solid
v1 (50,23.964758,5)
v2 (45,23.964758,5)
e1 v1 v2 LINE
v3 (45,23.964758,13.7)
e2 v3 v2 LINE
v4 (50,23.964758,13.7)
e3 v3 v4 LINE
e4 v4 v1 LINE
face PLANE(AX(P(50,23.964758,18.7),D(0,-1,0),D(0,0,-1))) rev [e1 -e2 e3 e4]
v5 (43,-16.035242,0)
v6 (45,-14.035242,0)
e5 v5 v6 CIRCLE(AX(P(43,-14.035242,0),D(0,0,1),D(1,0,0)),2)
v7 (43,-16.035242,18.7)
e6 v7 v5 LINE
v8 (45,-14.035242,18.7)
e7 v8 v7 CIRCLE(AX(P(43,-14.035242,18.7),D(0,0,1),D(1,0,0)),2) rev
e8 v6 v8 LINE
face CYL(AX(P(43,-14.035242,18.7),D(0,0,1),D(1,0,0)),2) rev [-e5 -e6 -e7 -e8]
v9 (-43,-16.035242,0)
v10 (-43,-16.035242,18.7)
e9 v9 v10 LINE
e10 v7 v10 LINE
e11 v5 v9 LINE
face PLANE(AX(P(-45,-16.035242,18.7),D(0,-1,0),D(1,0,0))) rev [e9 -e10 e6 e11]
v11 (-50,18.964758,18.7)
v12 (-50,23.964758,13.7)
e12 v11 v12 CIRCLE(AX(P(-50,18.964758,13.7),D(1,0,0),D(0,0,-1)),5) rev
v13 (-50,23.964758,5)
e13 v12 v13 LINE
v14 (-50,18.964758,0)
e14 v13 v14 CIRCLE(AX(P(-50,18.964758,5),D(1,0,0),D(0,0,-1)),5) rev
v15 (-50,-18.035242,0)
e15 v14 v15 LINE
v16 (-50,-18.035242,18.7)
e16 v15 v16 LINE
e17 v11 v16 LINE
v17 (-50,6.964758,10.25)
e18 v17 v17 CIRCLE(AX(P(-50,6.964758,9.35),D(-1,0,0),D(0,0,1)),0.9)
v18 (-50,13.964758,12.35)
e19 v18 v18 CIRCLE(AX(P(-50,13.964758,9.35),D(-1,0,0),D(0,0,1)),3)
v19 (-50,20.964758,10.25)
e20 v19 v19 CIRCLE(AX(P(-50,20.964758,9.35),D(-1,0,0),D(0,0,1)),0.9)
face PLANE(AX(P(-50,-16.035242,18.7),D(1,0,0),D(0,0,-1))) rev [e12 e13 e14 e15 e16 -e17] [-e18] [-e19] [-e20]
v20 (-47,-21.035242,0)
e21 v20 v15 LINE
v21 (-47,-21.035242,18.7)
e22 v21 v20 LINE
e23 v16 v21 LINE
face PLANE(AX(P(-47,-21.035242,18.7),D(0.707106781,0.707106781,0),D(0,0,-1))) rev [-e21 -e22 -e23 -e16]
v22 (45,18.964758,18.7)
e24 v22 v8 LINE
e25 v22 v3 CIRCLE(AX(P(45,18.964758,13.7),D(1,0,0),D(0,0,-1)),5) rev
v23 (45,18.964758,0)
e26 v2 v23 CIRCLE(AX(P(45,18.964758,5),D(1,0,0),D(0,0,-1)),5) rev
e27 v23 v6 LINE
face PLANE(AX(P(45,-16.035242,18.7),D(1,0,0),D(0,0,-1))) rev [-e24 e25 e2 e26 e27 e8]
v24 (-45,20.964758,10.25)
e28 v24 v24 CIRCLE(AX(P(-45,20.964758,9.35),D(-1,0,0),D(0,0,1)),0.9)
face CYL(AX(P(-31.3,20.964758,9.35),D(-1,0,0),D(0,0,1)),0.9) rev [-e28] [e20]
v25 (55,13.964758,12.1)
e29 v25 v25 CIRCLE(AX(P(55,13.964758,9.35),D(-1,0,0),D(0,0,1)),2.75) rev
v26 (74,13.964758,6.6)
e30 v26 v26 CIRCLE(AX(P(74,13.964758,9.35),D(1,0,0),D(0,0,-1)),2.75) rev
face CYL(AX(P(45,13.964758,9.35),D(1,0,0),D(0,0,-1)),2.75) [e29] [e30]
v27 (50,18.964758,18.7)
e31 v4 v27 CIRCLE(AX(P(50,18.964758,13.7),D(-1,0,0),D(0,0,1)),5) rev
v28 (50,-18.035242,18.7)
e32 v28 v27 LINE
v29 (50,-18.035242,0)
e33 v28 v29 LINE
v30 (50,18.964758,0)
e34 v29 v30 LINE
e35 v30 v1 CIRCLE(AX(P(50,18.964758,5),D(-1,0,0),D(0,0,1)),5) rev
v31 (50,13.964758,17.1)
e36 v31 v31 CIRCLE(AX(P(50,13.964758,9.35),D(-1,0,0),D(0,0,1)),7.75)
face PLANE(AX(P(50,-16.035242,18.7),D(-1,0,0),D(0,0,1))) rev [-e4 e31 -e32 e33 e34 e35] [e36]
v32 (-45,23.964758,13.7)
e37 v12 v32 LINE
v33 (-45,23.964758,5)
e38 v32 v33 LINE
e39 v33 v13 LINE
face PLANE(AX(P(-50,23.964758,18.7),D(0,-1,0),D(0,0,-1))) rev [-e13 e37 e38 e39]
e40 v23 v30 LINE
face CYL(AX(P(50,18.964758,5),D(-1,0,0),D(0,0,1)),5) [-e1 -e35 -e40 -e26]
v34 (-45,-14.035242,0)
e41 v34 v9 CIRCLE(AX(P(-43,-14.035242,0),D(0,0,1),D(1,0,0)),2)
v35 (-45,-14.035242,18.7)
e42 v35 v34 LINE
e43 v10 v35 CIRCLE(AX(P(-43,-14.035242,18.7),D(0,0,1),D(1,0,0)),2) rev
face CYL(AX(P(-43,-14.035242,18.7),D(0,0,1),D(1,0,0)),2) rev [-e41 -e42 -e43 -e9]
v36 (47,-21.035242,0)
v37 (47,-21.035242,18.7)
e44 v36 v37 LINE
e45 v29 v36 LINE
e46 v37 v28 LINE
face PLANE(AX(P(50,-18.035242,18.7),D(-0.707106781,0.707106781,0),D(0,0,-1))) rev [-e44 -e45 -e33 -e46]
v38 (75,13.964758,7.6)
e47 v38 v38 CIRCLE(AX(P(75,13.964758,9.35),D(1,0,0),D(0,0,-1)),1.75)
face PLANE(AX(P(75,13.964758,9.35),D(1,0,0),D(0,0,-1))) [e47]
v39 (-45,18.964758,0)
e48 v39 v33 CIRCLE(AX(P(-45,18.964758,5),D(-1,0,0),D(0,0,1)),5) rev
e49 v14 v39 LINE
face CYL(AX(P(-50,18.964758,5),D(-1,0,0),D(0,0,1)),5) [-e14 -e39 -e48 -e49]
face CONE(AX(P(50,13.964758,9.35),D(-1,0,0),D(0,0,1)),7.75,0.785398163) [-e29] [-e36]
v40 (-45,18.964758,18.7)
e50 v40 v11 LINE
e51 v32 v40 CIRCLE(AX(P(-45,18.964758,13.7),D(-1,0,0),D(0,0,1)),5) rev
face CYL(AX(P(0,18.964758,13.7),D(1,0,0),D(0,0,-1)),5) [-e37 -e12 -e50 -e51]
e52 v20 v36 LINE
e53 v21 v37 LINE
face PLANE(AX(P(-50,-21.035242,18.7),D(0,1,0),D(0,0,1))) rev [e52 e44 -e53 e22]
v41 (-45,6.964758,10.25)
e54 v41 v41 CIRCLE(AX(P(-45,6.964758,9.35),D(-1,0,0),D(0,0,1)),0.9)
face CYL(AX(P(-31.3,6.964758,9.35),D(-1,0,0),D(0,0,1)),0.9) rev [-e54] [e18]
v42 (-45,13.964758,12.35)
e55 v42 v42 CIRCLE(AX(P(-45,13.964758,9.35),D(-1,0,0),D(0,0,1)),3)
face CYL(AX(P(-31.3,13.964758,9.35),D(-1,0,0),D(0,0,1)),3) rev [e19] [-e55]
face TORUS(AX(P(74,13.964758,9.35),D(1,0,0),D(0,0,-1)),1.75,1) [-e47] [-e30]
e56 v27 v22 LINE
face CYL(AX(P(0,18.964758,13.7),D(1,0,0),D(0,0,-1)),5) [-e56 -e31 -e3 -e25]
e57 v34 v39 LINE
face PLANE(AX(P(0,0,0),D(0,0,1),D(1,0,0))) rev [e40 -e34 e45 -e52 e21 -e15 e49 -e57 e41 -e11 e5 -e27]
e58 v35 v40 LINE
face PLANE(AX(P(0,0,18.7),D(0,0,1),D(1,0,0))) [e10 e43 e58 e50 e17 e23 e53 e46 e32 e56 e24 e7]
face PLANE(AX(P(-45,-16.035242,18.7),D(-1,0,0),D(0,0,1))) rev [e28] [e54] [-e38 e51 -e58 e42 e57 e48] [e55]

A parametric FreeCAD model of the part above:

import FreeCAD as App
import Part
import Sketcher
from FreeCAD import Vector
Q = App.Units.Quantity


def edges_at(feature, points):
    """Names of the edges that pass closest to the given points."""
    edges = feature.Shape.Edges
    near = lambda p: min(range(len(edges)), key=lambda i: edges[i].distToShape(Part.Vertex(*p))[0])
    return sorted({f"Edge{near(p) + 1}" for p in points})

doc = App.newDocument("Part")
body = doc.addObject("PartDesign::Body", "Body")

# Sketch on XY plane
sketch1 = body.newObject("Sketcher::SketchObject", "Sketch")
sketch1.AttachmentSupport = (doc.getObject("XY_Plane"), [""])
sketch1.MapMode = "FlatFace"
sketch1.addGeometry([
    Part.LineSegment(Vector(45, -16, 0), Vector(-45, -16, 0)),  # 0
    Part.LineSegment(Vector(-45, -16, 0), Vector(-45, 24, 0)),  # 1
    Part.LineSegment(Vector(-45, 24, 0), Vector(-50, 24, 0)),  # 2
    Part.LineSegment(Vector(-50, 24, 0), Vector(-50, -21, 0)),  # 3
    Part.LineSegment(Vector(-50, -21, 0), Vector(50, -21, 0)),  # 4
    Part.LineSegment(Vector(50, -21, 0), Vector(50, 24, 0)),  # 5
    Part.LineSegment(Vector(50, 24, 0), Vector(45, 24, 0)),  # 6
    Part.LineSegment(Vector(45, 24, 0), Vector(45, -16, 0)),  # 7
], False)
sketch1.addConstraint([
    Sketcher.Constraint("Coincident", 0, 2, 1, 1),
    Sketcher.Constraint("Coincident", 1, 2, 2, 1),
    Sketcher.Constraint("Coincident", 2, 2, 3, 1),
    Sketcher.Constraint("Coincident", 3, 2, 4, 1),
    Sketcher.Constraint("Coincident", 4, 2, 5, 1),
    Sketcher.Constraint("Coincident", 5, 2, 6, 1),
    Sketcher.Constraint("Coincident", 6, 2, 7, 1),
    Sketcher.Constraint("Coincident", 7, 2, 0, 1),
    Sketcher.Constraint("Horizontal", 0),
    Sketcher.Constraint("Vertical", 1),
    Sketcher.Constraint("Horizontal", 2),
    Sketcher.Constraint("Vertical", 3),
    Sketcher.Constraint("Horizontal", 4),
    Sketcher.Constraint("Vertical", 5),
    Sketcher.Constraint("Horizontal", 6),
    Sketcher.Constraint("Vertical", 7),
    Sketcher.Constraint("Symmetric", 2, 2, 5, 2, -2),
    Sketcher.Constraint("Equal", 2, 6),
    Sketcher.Constraint("DistanceX", 0, 2, 0, 1, Q("90 mm")),
    Sketcher.Constraint("DistanceX", 2, 2, 2, 1, Q("5 mm")),
    Sketcher.Constraint("DistanceY", 1, 1, 1, 2, Q("40 mm")),
    Sketcher.Constraint("DistanceY", 3, 2, 3, 1, Q("45 mm")),
    Sketcher.Constraint("DistanceY", 0, 2, -1, 1, Q("16.035242 mm")),
])
pad1 = body.newObject("PartDesign::Pad", "Pad")
pad1.Profile = sketch1
pad1.Length = 18.7
doc.recompute()

fillet = body.newObject("PartDesign::Fillet", "Fillet")
fillet.Base = (pad1, edges_at(pad1, [
    (47.5, 23.965, 18.7),
    (-47.5, 23.965, 0),
    (47.5, 23.965, 0),
    (-47.5, 23.965, 18.7),
]))
fillet.Radius = 5
doc.recompute()

fillet2 = body.newObject("PartDesign::Fillet", "Fillet001")
fillet2.Base = (fillet, edges_at(fillet, [(-45, -16.035, 9.35), (45, -16.035, 9.35)]))
fillet2.Radius = 2
doc.recompute()

chamfer = body.newObject("PartDesign::Chamfer", "Chamfer")
chamfer.Base = (fillet2, edges_at(fillet2, [(50, -21.035, 9.35), (-50, -21.035, 9.35)]))
chamfer.Size = 3

# Sketch on YZ plane
sketch2 = body.newObject("Sketcher::SketchObject", "Sketch001")
sketch2.AttachmentSupport = (doc.getObject("YZ_Plane"), [""])
sketch2.MapMode = "FlatFace"
sketch2.AttachmentOffset = App.Placement(Vector(0, 0, -50), App.Rotation())
sketch2.addGeometry([
    Part.Circle(Vector(14, 9.3, 0), Vector(0, 0, 1), 3),
    Part.Circle(Vector(21, 9.3, 0), Vector(0, 0, 1), 0.9),
    Part.Circle(Vector(7, 9.3, 0), Vector(0, 0, 1), 0.9),
], False)
sketch2.addConstraint([
    Sketcher.Constraint("Equal", 1, 2),
    Sketcher.Constraint("Horizontal", 0, 3, 1, 3),
    Sketcher.Constraint("Horizontal", 1, 3, 2, 3),
    Sketcher.Constraint("Diameter", 0, Q("6 mm")),
    Sketcher.Constraint("Diameter", 1, Q("1.8 mm")),
    Sketcher.Constraint("DistanceX", 0, 3, 1, 3, Q("7 mm")),
    Sketcher.Constraint("DistanceX", 2, 3, 0, 3, Q("7 mm")),
    Sketcher.Constraint("DistanceY", -1, 1, 0, 3, Q("9.35 mm")),
    Sketcher.Constraint("DistanceX", -1, 1, 0, 3, Q("13.964758 mm")),
])
pocket1 = body.newObject("PartDesign::Pocket", "Pocket")
pocket1.Profile = sketch2
pocket1.Length = 18.7
pocket1.Reversed = True

# Sketch on YZ plane
sketch3 = body.newObject("Sketcher::SketchObject", "Sketch002")
sketch3.AttachmentSupport = (doc.getObject("YZ_Plane"), [""])
sketch3.MapMode = "FlatFace"
sketch3.AttachmentOffset = App.Placement(Vector(0, 0, -50), App.Rotation())
sketch3.addGeometry(Part.Circle(Vector(13.96, 9.35, 0), Vector(0, 0, 1), 0.41), False)
sketch3.addConstraint([
    Sketcher.Constraint("Diameter", 0, Q("0.828838 mm")),
    Sketcher.Constraint("DistanceY", -1, 1, 0, 3, Q("9.35 mm")),
    Sketcher.Constraint("DistanceX", -1, 1, 0, 3, Q("13.964758 mm")),
])
pocket2 = body.newObject("PartDesign::Pocket", "Pocket001")
pocket2.Profile = sketch3
pocket2.Length = 118.7
pocket2.Reversed = True

# Sketch on YZ plane
sketch4 = body.newObject("Sketcher::SketchObject", "Sketch003")
sketch4.AttachmentSupport = (doc.getObject("YZ_Plane"), [""])
sketch4.MapMode = "FlatFace"
sketch4.AttachmentOffset = App.Placement(Vector(0, 0, 50), App.Rotation())
sketch4.addGeometry(Part.Circle(Vector(14, 9.3, 0), Vector(0, 0, 1), 2.8), False)
sketch4.addConstraint([
    Sketcher.Constraint("Diameter", 0, Q("5.5 mm")),
    Sketcher.Constraint("DistanceY", -1, 1, 0, 3, Q("9.35 mm")),
    Sketcher.Constraint("DistanceX", -1, 1, 0, 3, Q("13.964758 mm")),
])
pad2 = body.newObject("PartDesign::Pad", "Pad001")
pad2.Profile = sketch4
pad2.Type = "TwoLengths"
pad2.Length = 25
pad2.Length2 = 5
doc.recompute()

chamfer2 = body.newObject("PartDesign::Chamfer", "Chamfer001")
chamfer2.Base = (pad2, edges_at(pad2, [(50, 13.965, 12.1)]))
chamfer2.Size = 5
doc.recompute()

fillet3 = body.newObject("PartDesign::Fillet", "Fillet002")
fillet3.Base = (chamfer2, edges_at(chamfer2, [(75, 13.965, 12.1)]))
fillet3.Radius = 1

doc.recompute()
